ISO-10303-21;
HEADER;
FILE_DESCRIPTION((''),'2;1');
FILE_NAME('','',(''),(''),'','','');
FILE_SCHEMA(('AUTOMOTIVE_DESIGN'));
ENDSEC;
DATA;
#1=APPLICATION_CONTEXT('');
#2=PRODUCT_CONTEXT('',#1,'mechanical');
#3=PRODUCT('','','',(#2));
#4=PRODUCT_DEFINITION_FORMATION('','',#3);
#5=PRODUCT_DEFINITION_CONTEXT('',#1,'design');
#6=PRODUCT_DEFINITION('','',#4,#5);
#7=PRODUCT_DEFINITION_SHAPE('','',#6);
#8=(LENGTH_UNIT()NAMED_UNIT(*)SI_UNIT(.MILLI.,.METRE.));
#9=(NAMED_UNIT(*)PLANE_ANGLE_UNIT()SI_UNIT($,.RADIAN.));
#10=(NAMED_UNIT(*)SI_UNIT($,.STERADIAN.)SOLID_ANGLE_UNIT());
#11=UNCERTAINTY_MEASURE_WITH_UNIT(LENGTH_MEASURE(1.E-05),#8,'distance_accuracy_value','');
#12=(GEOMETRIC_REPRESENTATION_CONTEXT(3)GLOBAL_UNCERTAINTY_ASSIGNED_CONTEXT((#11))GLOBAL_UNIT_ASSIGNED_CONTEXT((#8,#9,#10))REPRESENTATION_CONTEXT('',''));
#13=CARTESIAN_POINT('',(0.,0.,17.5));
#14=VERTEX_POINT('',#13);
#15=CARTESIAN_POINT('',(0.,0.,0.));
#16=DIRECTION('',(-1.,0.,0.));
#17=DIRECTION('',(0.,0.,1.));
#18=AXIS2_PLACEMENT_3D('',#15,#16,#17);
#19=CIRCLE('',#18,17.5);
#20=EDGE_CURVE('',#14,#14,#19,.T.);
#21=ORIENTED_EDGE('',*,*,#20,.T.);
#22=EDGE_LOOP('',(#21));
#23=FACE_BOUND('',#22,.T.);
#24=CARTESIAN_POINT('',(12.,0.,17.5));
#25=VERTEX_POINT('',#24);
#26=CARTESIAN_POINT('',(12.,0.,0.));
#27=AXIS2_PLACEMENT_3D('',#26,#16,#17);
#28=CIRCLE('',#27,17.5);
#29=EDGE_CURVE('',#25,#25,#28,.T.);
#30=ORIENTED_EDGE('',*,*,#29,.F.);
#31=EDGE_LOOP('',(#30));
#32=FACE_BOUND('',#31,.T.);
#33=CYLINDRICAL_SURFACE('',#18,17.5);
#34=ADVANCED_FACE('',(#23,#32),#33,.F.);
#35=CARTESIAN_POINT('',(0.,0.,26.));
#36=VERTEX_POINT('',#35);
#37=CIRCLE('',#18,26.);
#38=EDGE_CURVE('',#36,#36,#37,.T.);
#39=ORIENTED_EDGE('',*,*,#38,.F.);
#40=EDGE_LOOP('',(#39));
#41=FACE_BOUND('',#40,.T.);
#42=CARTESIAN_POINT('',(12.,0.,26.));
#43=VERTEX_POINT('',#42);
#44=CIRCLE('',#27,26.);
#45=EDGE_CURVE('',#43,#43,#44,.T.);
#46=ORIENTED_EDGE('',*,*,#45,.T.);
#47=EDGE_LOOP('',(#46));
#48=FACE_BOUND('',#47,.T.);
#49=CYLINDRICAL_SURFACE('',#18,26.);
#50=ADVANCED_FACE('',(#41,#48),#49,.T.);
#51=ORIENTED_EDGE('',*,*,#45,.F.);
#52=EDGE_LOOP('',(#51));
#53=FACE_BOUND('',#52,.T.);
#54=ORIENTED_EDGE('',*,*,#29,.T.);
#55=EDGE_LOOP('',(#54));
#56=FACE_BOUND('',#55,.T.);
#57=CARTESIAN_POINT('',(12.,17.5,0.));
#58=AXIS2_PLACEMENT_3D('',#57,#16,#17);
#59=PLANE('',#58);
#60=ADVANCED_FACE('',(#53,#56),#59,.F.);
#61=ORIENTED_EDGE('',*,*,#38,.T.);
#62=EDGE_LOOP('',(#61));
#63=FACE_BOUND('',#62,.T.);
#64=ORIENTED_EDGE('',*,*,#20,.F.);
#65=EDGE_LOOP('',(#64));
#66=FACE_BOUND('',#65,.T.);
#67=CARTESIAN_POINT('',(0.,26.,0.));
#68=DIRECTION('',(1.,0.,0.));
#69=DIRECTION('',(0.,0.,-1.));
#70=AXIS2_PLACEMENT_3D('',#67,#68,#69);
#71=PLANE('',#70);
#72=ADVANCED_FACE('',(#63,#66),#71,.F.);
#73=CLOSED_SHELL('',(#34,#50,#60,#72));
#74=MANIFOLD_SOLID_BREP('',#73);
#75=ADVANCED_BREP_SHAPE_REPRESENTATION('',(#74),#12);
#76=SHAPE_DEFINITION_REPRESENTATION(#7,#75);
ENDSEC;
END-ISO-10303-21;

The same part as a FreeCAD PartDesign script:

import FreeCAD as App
import Part
import Sketcher
from FreeCAD import Vector
Q = App.Units.Quantity


def add_polygon(sketch, points):
    """Adds a closed chain of lines whose ends are joined by coincident constraints."""
    first, n = sketch.GeometryCount, len(points)
    for a, b in zip(points, points[1:] + points[:1]):
        sketch.addGeometry(Part.LineSegment(App.Vector(*a, 0), App.Vector(*b, 0)), False)
    for i in range(n):
        sketch.addConstraint(Sketcher.Constraint("Coincident", first + i, 2, first + (i + 1) % n, 1))

doc = App.newDocument("Part")
body = doc.addObject("PartDesign::Body", "Body")

# Sketch on XY plane
sketch1 = doc.addObject("Sketcher::SketchObject", "Sketch")
body.addObject(sketch1)
sketch1.AttachmentSupport = (doc.XY_Plane, [""])
sketch1.MapMode = "FlatFace"
add_polygon(sketch1, [(0, 26), (0, 18), (12, 18), (12, 26)])  # lines 0-3
sketch1.addConstraint([
    Sketcher.Constraint("Vertical", 0),
    Sketcher.Constraint("Horizontal", 1),
    Sketcher.Constraint("Vertical", 2),
    Sketcher.Constraint("Horizontal", 3),
    Sketcher.Constraint("PointOnObject", 0, 2, -2),
    Sketcher.Constraint("DistanceX", 1, 1, 1, 2, Q("12 mm")),
    Sketcher.Constraint("DistanceY", 0, 2, 0, 1, Q("8.5 mm")),
    Sketcher.Constraint("DistanceY", -1, 1, 2, 2, Q("26 mm")),
])
revolution = doc.addObject("PartDesign::Revolution", "Revolution")
body.addObject(revolution)
revolution.Profile = sketch1
revolution.ReferenceAxis = (sketch1, ["H_Axis"])
revolution.Angle = 360

doc.recompute()
